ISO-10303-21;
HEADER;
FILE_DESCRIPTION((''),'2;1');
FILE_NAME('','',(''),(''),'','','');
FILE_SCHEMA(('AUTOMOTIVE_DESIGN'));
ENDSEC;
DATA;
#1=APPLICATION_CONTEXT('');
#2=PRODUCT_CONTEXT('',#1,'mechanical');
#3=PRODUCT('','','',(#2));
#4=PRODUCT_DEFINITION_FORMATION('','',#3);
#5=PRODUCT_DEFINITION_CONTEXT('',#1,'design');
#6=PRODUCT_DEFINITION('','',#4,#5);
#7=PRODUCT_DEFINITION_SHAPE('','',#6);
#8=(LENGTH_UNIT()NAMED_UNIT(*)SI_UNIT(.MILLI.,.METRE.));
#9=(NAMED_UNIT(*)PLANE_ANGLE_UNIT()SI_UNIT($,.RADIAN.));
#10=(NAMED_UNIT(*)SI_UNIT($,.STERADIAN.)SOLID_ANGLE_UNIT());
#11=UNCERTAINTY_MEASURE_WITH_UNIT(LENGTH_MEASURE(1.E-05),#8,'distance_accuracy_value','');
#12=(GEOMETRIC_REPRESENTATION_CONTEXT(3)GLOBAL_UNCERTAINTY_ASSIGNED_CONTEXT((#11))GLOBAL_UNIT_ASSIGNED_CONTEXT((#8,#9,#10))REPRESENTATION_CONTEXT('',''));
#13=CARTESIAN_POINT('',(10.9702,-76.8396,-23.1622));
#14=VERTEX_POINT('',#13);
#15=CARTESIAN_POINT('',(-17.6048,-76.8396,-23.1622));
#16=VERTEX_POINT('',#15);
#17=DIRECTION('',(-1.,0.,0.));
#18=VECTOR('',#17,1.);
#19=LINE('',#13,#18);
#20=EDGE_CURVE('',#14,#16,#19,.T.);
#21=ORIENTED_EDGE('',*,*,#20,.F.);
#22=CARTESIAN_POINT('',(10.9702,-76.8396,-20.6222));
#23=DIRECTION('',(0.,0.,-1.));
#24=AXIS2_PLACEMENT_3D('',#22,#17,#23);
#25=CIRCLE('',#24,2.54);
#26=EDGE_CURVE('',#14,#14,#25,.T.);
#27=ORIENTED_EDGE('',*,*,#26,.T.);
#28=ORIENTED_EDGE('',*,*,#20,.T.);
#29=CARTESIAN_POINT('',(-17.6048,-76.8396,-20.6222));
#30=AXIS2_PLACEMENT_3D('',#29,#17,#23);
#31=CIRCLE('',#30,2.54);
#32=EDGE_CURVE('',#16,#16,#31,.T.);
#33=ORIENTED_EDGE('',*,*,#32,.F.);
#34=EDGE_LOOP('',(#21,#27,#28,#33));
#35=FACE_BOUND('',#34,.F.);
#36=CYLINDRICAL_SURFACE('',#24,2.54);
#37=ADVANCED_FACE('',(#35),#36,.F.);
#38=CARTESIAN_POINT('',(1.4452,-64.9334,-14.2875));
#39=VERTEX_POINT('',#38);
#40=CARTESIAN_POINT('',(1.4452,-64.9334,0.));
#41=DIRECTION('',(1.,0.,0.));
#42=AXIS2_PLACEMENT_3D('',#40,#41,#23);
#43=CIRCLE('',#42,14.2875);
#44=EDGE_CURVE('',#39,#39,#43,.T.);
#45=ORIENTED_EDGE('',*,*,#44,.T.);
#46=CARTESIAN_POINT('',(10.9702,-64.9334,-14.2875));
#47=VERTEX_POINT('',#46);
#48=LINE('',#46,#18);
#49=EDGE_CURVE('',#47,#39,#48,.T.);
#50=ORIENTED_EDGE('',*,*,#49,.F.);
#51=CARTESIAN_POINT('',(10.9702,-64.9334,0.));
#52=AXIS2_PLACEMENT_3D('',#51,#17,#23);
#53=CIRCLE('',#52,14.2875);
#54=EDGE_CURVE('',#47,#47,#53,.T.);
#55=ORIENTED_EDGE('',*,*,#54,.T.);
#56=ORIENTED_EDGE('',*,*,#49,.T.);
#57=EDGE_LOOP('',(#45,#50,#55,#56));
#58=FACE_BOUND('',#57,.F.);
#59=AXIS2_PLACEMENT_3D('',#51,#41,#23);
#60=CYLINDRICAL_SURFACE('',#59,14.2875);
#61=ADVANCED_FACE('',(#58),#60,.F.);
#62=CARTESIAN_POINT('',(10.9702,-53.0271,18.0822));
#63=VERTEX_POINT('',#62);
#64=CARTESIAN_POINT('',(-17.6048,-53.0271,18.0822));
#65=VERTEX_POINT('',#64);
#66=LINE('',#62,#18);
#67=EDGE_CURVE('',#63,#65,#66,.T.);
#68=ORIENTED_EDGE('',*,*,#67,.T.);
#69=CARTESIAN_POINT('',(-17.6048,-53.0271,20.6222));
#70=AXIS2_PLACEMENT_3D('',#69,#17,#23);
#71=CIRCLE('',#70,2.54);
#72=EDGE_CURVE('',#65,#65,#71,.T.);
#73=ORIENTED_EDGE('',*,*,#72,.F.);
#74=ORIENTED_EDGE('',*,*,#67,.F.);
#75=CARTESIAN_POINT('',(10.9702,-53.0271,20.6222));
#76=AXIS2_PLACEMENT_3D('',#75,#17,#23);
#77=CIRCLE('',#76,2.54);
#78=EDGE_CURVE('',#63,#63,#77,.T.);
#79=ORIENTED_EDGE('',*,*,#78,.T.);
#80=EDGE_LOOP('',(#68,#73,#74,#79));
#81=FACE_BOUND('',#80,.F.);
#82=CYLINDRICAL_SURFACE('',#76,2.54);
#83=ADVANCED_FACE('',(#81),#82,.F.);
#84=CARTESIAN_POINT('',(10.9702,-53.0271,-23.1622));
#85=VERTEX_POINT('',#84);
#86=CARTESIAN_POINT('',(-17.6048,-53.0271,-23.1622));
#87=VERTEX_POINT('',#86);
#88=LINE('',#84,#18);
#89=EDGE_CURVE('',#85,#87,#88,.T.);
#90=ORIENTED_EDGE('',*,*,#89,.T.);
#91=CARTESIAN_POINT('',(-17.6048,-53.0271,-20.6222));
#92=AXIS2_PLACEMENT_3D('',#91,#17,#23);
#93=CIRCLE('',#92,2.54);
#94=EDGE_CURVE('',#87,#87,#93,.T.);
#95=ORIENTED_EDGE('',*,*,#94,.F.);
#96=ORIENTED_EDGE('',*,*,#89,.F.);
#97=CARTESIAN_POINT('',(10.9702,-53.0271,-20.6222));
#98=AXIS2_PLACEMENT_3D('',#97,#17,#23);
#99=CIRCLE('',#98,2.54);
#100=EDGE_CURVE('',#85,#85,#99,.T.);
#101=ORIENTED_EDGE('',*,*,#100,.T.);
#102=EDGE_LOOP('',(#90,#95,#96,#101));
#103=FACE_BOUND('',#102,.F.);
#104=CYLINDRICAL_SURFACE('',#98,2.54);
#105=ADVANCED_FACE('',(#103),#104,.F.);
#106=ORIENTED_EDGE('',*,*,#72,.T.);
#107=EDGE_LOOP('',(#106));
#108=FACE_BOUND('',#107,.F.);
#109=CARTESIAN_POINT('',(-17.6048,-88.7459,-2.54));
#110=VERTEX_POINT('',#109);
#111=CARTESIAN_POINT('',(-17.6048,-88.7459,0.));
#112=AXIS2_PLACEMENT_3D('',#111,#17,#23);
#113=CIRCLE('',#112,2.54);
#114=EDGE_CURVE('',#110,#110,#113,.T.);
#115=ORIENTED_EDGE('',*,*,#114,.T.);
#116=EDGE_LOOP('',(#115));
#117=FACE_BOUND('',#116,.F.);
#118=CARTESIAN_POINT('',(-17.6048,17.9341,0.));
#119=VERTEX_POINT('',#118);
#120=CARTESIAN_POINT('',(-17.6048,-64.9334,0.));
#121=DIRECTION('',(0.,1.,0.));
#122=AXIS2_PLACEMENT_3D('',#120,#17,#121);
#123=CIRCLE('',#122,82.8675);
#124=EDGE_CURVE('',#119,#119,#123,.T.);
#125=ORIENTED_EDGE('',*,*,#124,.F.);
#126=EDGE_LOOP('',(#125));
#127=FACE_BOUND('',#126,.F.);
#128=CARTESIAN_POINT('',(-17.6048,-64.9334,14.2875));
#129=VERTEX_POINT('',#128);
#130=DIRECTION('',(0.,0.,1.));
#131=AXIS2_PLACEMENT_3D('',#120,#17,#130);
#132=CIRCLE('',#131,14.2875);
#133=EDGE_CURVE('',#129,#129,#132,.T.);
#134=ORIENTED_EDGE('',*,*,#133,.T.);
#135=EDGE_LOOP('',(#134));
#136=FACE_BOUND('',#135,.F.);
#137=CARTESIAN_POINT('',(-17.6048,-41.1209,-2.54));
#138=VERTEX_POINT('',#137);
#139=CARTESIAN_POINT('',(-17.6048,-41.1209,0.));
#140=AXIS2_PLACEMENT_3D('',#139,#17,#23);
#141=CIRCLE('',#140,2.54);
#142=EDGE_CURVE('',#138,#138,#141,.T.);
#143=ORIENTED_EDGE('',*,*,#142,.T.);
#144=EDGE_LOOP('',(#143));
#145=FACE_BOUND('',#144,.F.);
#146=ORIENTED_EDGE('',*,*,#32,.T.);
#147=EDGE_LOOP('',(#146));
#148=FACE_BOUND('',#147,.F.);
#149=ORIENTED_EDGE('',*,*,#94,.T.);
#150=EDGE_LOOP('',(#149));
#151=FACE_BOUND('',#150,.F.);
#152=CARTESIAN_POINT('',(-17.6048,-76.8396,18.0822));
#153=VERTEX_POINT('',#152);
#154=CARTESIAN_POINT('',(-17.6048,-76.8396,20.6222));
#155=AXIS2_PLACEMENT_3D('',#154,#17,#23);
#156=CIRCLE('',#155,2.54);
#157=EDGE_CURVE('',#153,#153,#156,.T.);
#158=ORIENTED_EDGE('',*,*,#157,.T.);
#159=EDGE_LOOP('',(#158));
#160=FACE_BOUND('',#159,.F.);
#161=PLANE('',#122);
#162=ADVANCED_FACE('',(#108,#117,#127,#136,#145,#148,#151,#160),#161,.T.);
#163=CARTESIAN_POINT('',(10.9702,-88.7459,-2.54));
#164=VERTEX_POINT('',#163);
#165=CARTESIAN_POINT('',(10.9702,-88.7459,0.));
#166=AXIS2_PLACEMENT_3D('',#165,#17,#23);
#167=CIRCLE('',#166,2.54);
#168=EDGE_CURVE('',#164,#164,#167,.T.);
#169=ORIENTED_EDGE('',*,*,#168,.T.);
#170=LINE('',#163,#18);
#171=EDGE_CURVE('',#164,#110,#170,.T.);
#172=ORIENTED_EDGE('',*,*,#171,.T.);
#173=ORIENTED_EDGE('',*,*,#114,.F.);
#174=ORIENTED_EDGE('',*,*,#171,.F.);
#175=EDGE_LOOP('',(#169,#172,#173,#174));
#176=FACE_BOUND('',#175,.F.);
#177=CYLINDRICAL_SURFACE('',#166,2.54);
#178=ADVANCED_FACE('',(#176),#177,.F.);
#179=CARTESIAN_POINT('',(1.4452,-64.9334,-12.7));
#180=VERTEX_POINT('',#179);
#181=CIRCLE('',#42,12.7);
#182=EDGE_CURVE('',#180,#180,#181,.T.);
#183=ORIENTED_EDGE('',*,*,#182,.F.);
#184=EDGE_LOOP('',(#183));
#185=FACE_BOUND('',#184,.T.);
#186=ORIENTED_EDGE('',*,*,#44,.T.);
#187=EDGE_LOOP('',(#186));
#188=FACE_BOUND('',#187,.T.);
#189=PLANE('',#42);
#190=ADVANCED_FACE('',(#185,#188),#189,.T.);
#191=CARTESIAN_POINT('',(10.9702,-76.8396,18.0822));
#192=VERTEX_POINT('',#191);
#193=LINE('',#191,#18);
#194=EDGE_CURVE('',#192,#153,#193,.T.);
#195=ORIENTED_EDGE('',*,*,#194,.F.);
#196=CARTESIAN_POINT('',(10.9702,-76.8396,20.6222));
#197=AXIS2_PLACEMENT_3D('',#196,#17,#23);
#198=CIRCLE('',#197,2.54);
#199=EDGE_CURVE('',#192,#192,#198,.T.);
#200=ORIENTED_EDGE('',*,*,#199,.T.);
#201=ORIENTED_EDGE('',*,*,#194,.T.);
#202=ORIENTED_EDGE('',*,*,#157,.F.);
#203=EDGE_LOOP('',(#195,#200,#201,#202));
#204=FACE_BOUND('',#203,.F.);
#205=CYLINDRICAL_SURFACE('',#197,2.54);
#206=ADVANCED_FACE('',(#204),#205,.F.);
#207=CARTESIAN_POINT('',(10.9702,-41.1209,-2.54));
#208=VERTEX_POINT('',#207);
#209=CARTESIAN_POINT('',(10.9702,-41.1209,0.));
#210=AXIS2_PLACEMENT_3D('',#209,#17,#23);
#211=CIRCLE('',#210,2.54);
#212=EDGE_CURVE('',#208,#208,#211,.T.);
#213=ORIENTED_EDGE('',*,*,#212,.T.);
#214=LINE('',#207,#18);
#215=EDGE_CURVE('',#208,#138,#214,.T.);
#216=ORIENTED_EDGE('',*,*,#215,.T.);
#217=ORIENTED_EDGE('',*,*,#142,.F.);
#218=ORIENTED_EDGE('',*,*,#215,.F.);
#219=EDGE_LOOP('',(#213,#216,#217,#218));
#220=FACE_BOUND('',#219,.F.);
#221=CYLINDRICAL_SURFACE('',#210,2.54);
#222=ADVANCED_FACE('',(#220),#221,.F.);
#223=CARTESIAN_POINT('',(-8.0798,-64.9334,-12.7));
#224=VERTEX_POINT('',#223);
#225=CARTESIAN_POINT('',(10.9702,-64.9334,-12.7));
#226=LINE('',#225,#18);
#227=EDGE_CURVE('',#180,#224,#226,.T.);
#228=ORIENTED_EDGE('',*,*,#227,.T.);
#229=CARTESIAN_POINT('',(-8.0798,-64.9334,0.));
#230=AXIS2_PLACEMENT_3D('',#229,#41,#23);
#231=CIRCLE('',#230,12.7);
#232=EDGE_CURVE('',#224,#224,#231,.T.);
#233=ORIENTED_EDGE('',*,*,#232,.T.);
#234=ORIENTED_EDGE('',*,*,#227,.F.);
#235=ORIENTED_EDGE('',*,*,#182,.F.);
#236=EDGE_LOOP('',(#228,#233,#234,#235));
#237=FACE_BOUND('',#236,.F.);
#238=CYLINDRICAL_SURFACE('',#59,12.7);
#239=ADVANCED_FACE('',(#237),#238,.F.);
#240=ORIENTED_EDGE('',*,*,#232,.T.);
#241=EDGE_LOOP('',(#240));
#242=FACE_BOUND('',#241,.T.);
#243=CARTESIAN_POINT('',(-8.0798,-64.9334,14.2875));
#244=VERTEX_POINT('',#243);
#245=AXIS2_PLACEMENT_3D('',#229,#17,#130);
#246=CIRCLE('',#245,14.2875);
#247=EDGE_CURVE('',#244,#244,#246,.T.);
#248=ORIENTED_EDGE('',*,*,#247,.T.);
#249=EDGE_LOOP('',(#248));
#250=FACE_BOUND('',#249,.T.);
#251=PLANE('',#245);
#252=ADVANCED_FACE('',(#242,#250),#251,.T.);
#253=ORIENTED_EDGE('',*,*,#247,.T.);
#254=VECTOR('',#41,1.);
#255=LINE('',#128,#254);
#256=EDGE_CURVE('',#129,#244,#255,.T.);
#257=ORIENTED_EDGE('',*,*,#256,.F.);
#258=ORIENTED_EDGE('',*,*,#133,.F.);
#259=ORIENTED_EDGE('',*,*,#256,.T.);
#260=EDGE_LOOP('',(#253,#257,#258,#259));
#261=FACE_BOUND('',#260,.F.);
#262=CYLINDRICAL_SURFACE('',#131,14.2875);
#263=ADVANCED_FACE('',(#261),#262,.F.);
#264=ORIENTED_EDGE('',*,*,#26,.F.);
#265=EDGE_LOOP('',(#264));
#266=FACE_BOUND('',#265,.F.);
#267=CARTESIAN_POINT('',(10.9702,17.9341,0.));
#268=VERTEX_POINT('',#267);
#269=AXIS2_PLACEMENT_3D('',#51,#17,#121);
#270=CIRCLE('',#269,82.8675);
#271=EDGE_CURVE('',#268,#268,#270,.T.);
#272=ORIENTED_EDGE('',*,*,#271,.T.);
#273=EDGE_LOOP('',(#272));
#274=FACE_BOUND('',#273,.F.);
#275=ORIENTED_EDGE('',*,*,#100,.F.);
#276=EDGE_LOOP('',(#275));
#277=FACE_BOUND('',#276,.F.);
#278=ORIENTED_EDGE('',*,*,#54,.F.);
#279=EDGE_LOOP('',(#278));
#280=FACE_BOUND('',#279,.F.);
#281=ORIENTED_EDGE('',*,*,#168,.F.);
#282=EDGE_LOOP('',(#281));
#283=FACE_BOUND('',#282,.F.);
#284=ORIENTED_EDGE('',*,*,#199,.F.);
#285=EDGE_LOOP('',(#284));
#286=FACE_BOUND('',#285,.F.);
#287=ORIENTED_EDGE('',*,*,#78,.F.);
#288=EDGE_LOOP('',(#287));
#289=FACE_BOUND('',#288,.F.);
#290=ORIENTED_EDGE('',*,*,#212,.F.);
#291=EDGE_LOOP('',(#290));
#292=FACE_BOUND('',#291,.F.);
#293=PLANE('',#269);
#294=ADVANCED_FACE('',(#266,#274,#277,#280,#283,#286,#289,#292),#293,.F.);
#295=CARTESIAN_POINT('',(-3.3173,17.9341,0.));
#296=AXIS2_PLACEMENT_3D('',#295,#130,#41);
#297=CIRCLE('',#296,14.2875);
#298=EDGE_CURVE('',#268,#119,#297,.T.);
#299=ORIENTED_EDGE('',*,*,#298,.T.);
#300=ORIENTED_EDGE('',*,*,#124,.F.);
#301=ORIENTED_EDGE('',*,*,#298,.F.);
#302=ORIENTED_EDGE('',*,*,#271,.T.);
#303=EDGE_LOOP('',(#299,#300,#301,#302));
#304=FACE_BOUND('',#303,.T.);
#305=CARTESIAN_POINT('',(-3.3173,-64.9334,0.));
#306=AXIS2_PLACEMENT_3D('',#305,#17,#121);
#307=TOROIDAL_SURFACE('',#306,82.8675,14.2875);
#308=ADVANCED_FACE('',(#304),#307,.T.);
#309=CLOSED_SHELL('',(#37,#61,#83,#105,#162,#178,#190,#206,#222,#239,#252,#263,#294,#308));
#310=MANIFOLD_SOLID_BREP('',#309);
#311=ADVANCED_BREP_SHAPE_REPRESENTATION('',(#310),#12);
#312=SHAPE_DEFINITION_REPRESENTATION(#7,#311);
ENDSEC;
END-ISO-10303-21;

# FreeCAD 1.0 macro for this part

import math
import FreeCAD as App
import Part
import Sketcher
from FreeCAD import Vector
Q = App.Units.Quantity

doc = App.newDocument("Part")
params = doc.addObject("Spreadsheet::Sheet", "Params")
for row, (alias, value) in enumerate([
    ("sketch1_radius", "0.5625 in"),
    ("revolution_angle", "360 deg"),
    ("sketch2_diameter", "0.2 in"),
    ("hole_diameter", "0.2 in"),
    ("hole_depth", "2 in"),
    ("sketch3_diameter", "1 in"),
    ("pocket1_length", "2 in"),
    ("sketch4_diameter", "1 in"),
    ("sketch4_diameter2", "1.125 in"),
    ("pocket2_length", "0.375 in"),
    ("sketch5_diameter", "1.125 in"),
    ("sketch5_diameter2", "1 in"),
    ("pocket3_length", "0.375 in"),
], start=1):
    params.set(f"A{row}", alias)
    params.set(f"B{row}", "=" + value)
    params.setAlias(f"B{row}", alias)

body = doc.addObject("PartDesign::Body", "Body")

sketch1 = body.newObject("Sketcher::SketchObject", "Sketch")
sketch1.AttachmentSupport = (doc.getObject("XY_Plane"), [""])
sketch1.MapMode = "FlatFace"
sketch1.addGeometry([
    Part.ArcOfCircle(Part.Circle(Vector(-3, 18, 0), Vector(0, 0, 1), 14), math.radians(0), math.radians(180)),
    Part.LineSegment(Vector(-18, 18, 0), Vector(-18, -65, 0)),
    Part.LineSegment(Vector(-18, -65, 0), Vector(11, -65, 0)),
    Part.LineSegment(Vector(11, -65, 0), Vector(11, 18, 0)),
], False)
sketch1.addGeometry(Part.LineSegment(Vector(11, -65, 0), Vector(-18, -65, 0)), True)
sketch1.addConstraint([
    Sketcher.Constraint("Tangent", 0, 2, 1, 1),
    Sketcher.Constraint("Coincident", 1, 2, 2, 1),
    Sketcher.Constraint("Coincident", 2, 2, 3, 1),
    Sketcher.Constraint("Tangent", 3, 2, 0, 1),
    Sketcher.Constraint("Vertical", 1),
    Sketcher.Constraint("Horizontal", 2),
    Sketcher.Constraint("Vertical", 3),
    Sketcher.Constraint("Horizontal", 4),
    Sketcher.Constraint("Coincident", 4, 1, 2, 2),
    Sketcher.Constraint("Vertical", 0, 2, 4, 2),
    Sketcher.Constraint("Radius", 0, Q("0.5625 in")),
    Sketcher.Constraint("DistanceY", 1, 2, 1, 1, Q("3.2625 in")),
    Sketcher.Constraint("DistanceX", 0, 3, -1, 1, Q("0.1306 in")),
    Sketcher.Constraint("DistanceY", -1, 1, 0, 3, Q("17.934 mm")),
])
sketch1.setExpression("Constraints[10]", "Params.sketch1_radius")
revolution = body.newObject("PartDesign::Revolution", "Revolution")
revolution.Profile = sketch1
revolution.ReferenceAxis = (sketch1, ["Axis0"])
revolution.setExpression("Angle", "Params.revolution_angle")

sketch2 = body.newObject("Sketcher::SketchObject", "Sketch001")
sketch2.AttachmentSupport = (doc.getObject("YZ_Plane"), [""])
sketch2.MapMode = "FlatFace"
sketch2.AttachmentOffset = App.Placement(Vector(0, 0, 0.4318976 * 25.4), App.Rotation())
sketch2.addGeometry([
    Part.Circle(Vector(-41.1, 0, 0), Vector(0, 0, 1), 2.5),
    Part.Circle(Vector(-53, -20.6, 0), Vector(0, 0, 1), 2.5),
    Part.Circle(Vector(-76.8, -20.6, 0), Vector(0, 0, 1), 2.5),
    Part.Circle(Vector(-88.7, 0, 0), Vector(0, 0, 1), 2.5),
    Part.Circle(Vector(-76.8, 20.6, 0), Vector(0, 0, 1), 2.5),
    Part.Circle(Vector(-53, 20.6, 0), Vector(0, 0, 1), 2.5),
], False)
sketch2.addConstraint([
    Sketcher.Constraint("Equal", 0, 1),
    Sketcher.Constraint("Equal", 1, 2),
    Sketcher.Constraint("Equal", 2, 3),
    Sketcher.Constraint("Equal", 3, 4),
    Sketcher.Constraint("Equal", 4, 5),
    Sketcher.Constraint("Symmetric", 2, 3, 4, 3, -1),
    Sketcher.Constraint("Symmetric", 1, 3, 5, 3, -1),
    Sketcher.Constraint("PointOnObject", 0, 3, -1),
    Sketcher.Constraint("PointOnObject", 3, 3, -1),
    Sketcher.Constraint("Horizontal", 1, 3, 2, 3),
    Sketcher.Constraint("Diameter", 0, Q("0.2 in")),
    Sketcher.Constraint("DistanceX", 1, 3, 0, 3, Q("0.468748 in")),
    Sketcher.Constraint("DistanceX", 2, 3, 1, 3, Q("0.9375 in")),
    Sketcher.Constraint("DistanceX", 3, 3, 2, 3, Q("0.468752 in")),
    Sketcher.Constraint("DistanceY", 1, 3, -1, 1, Q("0.8119 in")),
    Sketcher.Constraint("DistanceX", 0, 3, -1, 1, Q("41.121 mm")),
])
sketch2.setExpression("Constraints[10]", "Params.sketch2_diameter")
doc.recompute()
hole = body.newObject("PartDesign::Hole", "Hole")
hole.Profile = sketch2
hole.ThreadType = "None"
hole.setExpression("Diameter", "Params.hole_diameter")
hole.DepthType = "Dimension"
hole.setExpression("Depth", "Params.hole_depth")
hole.DrillPoint = "Angled"
hole.DrillPointAngle = 118

sketch3 = body.newObject("Sketcher::SketchObject", "Sketch002")
sketch3.AttachmentSupport = (doc.getObject("YZ_Plane"), [""])
sketch3.MapMode = "FlatFace"
sketch3.AttachmentOffset = App.Placement(Vector(0, 0, 0.4318976 * 25.4), App.Rotation())
sketch3.addGeometry(Part.Circle(Vector(-65, 0, 0), Vector(0, 0, 1), 13), False)
sketch3.addConstraint([
    Sketcher.Constraint("PointOnObject", 0, 3, -1),
    Sketcher.Constraint("Diameter", 0, Q("1 in")),
    Sketcher.Constraint("DistanceX", 0, 3, -1, 1, Q("64.9334 mm")),
])
sketch3.setExpression("Constraints[1]", "Params.sketch3_diameter")
pocket1 = body.newObject("PartDesign::Pocket", "Pocket")
pocket1.Profile = sketch3
pocket1.setExpression("Length", "Params.pocket1_length")

sketch4 = body.newObject("Sketcher::SketchObject", "Sketch003")
sketch4.AttachmentSupport = (doc.getObject("YZ_Plane"), [""])
sketch4.MapMode = "FlatFace"
sketch4.AttachmentOffset = App.Placement(Vector(0, 0, 0.4318976 * 25.4), App.Rotation())
sketch4.addGeometry([
    Part.Circle(Vector(-65, 0, 0), Vector(0, 0, 1), 14),
    Part.Circle(Vector(-65, 0, 0), Vector(0, 0, 1), 13),
], False)
sketch4.addConstraint([
    Sketcher.Constraint("Coincident", 1, 3, 0, 3),
    Sketcher.Constraint("PointOnObject", 0, 3, -1),
    Sketcher.Constraint("Diameter", 1, Q("1 in")),
    Sketcher.Constraint("Diameter", 0, Q("1.125 in")),
    Sketcher.Constraint("DistanceX", 0, 3, -1, 1, Q("64.9334 mm")),
])
sketch4.setExpression("Constraints[2]", "Params.sketch4_diameter")
sketch4.setExpression("Constraints[3]", "Params.sketch4_diameter2")
pocket2 = body.newObject("PartDesign::Pocket", "Pocket001")
pocket2.Profile = sketch4
pocket2.setExpression("Length", "Params.pocket2_length")

sketch5 = body.newObject("Sketcher::SketchObject", "Sketch004")
sketch5.AttachmentSupport = (doc.getObject("YZ_Plane"), [""])
sketch5.MapMode = "FlatFace"
sketch5.AttachmentOffset = App.Placement(Vector(0, 0, -0.6931024 * 25.4), App.Rotation())
sketch5.addGeometry([
    Part.Circle(Vector(-65, 0, 0), Vector(0, 0, 1), 14),
    Part.Circle(Vector(-65, 0, 0), Vector(0, 0, 1), 13),
], False)
sketch5.addConstraint([
    Sketcher.Constraint("Coincident", 1, 3, 0, 3),
    Sketcher.Constraint("PointOnObject", 0, 3, -1),
    Sketcher.Constraint("Diameter", 0, Q("1.125 in")),
    Sketcher.Constraint("Diameter", 1, Q("1 in")),
    Sketcher.Constraint("DistanceX", 0, 3, -1, 1, Q("64.9334 mm")),
])
sketch5.setExpression("Constraints[2]", "Params.sketch5_diameter")
sketch5.setExpression("Constraints[3]", "Params.sketch5_diameter2")
pocket3 = body.newObject("PartDesign::Pocket", "Pocket002")
pocket3.Profile = sketch5
pocket3.setExpression("Length", "Params.pocket3_length")
pocket3.Reversed = True

doc.recompute()
